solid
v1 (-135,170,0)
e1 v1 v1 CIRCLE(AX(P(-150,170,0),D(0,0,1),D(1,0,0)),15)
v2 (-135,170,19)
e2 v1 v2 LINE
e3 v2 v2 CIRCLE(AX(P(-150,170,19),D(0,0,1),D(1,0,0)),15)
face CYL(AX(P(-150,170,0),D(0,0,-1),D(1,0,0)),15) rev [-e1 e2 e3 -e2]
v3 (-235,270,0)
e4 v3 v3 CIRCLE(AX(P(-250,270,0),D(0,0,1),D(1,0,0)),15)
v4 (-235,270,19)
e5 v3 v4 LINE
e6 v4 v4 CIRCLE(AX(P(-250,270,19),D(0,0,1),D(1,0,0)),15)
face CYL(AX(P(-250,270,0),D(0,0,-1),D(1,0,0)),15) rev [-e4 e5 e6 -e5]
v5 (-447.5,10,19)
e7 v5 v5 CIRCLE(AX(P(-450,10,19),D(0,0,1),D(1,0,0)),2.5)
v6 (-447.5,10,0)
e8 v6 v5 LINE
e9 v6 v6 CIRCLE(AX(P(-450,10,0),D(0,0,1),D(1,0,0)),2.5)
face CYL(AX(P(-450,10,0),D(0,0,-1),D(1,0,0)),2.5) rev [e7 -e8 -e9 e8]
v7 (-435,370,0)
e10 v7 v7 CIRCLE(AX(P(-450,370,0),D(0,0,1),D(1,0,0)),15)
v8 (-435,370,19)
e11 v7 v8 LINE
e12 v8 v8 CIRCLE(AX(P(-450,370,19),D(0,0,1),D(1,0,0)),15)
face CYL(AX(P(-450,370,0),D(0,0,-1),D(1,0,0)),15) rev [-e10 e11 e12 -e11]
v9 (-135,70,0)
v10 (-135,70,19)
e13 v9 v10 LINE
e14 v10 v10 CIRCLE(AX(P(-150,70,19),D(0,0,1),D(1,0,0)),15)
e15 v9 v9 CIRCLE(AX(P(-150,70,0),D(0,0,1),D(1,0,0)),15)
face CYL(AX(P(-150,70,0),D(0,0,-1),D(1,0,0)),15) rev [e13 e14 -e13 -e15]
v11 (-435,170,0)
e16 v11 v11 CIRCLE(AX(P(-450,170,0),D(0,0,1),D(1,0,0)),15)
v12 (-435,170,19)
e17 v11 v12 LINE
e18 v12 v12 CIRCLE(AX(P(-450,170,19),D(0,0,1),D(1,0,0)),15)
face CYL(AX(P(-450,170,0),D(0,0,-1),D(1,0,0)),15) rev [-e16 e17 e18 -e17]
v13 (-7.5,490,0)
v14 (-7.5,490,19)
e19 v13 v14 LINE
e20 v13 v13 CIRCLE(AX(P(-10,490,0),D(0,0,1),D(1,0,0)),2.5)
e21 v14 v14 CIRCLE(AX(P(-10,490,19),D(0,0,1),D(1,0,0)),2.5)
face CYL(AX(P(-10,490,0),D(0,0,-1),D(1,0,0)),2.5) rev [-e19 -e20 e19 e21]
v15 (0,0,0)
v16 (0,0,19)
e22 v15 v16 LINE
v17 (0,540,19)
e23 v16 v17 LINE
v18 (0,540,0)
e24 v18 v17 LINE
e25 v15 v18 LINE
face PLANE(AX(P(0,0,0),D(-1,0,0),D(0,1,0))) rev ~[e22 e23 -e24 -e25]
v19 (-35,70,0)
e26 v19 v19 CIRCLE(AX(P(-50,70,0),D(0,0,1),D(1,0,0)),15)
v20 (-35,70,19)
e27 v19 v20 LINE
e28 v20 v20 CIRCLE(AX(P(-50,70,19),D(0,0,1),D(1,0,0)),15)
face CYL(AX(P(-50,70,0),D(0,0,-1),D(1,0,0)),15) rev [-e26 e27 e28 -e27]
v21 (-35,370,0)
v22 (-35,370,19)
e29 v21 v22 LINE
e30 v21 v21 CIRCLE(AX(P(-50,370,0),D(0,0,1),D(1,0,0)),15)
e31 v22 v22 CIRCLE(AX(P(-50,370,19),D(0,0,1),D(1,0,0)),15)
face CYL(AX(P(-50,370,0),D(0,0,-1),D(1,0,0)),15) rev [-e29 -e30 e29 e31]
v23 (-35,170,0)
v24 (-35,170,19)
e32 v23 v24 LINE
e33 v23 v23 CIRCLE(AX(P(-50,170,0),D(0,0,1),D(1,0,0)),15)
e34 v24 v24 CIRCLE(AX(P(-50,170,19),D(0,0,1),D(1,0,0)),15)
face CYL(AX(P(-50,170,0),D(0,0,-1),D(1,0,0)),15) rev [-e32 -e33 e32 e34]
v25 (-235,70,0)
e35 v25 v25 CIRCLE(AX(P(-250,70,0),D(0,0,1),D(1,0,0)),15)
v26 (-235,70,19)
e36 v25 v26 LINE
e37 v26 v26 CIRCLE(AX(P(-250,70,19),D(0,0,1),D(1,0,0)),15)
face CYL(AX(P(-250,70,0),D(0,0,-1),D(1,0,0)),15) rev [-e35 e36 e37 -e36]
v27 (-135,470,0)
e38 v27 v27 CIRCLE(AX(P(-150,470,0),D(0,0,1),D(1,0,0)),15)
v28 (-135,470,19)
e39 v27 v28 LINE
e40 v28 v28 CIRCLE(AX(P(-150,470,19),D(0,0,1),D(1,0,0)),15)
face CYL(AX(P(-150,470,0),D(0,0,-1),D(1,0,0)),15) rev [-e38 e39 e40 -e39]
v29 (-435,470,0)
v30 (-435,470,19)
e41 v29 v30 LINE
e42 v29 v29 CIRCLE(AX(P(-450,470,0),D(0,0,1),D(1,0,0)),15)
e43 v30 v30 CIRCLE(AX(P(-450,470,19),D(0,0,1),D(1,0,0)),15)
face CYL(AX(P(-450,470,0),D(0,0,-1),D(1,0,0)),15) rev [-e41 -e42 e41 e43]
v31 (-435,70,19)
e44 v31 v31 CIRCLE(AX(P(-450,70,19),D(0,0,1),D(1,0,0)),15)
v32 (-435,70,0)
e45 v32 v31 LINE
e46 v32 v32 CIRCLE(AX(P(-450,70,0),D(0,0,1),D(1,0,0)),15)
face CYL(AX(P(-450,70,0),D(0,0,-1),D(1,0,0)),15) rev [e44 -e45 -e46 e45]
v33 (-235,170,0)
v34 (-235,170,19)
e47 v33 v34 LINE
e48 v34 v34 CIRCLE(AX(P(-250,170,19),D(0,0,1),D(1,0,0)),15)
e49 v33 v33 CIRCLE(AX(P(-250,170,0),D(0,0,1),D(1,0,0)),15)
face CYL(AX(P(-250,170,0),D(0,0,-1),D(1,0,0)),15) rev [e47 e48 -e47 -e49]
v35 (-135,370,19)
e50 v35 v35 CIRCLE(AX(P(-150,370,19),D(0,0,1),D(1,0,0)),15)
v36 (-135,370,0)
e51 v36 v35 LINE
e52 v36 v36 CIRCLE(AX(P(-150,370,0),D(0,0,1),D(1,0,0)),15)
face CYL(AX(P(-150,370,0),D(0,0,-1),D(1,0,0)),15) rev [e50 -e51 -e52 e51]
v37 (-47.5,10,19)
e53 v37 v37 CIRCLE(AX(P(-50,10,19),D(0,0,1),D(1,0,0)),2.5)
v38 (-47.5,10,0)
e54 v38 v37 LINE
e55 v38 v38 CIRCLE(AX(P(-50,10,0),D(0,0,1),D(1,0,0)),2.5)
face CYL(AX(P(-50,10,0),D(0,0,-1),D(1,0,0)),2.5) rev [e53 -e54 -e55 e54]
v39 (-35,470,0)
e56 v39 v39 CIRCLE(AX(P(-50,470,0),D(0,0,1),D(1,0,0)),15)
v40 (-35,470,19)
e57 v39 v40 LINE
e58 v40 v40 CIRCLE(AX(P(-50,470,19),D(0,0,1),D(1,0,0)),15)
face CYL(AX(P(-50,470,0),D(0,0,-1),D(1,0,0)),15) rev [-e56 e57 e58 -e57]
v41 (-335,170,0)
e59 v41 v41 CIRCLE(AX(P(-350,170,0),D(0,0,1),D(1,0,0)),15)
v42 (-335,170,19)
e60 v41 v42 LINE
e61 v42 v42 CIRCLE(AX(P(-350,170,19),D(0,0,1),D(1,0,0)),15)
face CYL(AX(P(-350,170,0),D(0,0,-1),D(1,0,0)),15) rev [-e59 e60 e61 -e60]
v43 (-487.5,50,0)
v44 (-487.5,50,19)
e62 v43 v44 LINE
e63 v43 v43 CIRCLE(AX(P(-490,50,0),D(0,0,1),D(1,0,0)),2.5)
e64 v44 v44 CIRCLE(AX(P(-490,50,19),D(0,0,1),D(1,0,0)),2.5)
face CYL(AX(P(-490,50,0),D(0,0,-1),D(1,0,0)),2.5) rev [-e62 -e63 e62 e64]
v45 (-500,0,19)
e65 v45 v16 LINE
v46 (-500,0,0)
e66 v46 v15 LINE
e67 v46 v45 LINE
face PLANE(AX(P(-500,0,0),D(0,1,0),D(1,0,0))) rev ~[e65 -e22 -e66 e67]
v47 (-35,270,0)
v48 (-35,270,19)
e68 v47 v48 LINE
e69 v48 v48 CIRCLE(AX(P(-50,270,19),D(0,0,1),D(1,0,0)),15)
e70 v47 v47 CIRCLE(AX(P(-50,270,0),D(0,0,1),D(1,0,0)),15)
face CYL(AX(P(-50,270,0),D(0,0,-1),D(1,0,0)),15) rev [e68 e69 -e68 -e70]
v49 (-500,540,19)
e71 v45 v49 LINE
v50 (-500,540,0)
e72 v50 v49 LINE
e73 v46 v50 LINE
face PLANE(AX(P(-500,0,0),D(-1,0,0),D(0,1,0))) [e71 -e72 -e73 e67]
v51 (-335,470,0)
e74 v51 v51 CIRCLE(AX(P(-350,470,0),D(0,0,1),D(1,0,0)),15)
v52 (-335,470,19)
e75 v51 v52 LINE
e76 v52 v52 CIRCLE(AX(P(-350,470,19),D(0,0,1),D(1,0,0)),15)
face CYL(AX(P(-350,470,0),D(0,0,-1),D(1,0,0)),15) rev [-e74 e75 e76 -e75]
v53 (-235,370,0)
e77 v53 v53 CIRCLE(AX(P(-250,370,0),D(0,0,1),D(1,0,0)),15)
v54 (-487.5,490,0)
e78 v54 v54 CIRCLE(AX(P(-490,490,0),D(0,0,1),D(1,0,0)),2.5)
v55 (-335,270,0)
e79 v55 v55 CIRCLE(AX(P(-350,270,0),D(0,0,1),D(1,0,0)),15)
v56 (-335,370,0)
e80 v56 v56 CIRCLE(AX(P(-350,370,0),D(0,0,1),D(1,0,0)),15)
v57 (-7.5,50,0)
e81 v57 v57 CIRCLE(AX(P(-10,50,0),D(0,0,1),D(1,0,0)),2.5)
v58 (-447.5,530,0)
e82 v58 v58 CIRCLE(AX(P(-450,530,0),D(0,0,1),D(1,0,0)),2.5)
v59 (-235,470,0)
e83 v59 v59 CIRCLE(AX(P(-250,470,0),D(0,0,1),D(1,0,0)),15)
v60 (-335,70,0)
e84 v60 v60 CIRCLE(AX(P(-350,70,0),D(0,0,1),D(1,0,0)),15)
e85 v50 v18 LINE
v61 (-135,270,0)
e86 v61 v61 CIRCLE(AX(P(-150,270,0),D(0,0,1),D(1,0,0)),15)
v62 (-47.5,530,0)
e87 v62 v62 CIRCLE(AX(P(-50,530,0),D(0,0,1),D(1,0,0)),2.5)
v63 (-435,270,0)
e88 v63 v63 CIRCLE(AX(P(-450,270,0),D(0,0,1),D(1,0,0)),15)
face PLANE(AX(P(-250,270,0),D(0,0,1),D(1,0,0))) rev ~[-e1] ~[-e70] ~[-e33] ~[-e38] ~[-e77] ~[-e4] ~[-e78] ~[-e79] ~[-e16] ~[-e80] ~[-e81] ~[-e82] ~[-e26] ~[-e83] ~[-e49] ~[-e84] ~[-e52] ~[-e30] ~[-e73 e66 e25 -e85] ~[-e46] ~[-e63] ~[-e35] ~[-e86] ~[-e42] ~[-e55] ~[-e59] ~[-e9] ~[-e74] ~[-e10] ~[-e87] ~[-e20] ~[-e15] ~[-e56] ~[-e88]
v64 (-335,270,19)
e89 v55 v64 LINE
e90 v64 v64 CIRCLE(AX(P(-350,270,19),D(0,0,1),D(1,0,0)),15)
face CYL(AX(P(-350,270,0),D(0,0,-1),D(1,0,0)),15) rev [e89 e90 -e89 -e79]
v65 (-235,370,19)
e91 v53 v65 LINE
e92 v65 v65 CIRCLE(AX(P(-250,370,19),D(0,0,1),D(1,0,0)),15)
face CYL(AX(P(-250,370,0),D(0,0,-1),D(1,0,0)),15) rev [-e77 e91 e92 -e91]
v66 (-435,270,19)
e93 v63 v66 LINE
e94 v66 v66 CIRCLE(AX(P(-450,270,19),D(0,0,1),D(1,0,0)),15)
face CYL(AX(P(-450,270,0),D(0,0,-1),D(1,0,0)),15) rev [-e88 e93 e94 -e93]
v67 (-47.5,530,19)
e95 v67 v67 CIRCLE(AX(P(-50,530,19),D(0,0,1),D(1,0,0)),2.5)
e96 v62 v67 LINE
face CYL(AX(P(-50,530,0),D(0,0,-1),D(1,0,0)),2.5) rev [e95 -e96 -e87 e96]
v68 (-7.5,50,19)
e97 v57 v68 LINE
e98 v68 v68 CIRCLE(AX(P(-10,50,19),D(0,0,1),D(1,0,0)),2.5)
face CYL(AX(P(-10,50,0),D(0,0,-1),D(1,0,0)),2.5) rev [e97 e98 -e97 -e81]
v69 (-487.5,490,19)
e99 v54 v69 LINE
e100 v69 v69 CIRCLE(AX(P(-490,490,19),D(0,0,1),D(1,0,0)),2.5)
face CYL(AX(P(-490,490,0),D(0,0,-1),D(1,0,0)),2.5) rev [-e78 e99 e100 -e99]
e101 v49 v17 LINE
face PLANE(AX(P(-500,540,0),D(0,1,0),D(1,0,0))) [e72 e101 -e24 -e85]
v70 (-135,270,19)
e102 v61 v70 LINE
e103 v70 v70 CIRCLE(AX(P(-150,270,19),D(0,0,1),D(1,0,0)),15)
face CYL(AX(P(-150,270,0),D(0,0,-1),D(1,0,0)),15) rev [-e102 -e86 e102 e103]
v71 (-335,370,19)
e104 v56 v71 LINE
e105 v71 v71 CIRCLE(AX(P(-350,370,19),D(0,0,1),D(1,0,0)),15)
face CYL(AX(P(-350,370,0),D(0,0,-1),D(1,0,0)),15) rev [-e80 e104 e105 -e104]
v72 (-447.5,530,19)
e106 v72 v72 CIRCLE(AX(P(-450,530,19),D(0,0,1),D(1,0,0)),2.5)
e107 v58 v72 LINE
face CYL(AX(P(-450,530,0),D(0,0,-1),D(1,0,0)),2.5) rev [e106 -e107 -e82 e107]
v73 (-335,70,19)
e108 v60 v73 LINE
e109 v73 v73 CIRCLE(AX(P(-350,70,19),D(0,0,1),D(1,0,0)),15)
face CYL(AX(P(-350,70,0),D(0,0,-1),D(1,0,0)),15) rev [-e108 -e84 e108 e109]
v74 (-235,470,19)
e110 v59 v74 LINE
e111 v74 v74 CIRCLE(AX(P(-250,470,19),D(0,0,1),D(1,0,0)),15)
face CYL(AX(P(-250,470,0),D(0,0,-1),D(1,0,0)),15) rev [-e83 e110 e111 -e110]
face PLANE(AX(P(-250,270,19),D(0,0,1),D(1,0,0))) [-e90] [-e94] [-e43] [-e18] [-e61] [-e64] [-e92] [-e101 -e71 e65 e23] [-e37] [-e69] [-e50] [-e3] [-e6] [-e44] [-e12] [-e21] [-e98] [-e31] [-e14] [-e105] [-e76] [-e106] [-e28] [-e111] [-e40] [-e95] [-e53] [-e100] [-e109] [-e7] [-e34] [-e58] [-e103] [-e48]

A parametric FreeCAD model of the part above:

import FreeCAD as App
import Part
import Sketcher

V = App.Vector

doc = App.newDocument("Part")
body = doc.addObject("PartDesign::Body", "Body")

# Sketch on XY plane
sketch1 = body.newObject("Sketcher::SketchObject", "Sketch")
sketch1.AttachmentSupport = (doc.getObject("XY_Plane"), [""])
sketch1.MapMode = "FlatFace"
sketch1.addGeometry(Part.LineSegment(V(-500, 540, 0), V(-500, 0, 0)), False)
sketch1.addGeometry(Part.LineSegment(V(-500, 0, 0), V(0, 0, 0)), False)
sketch1.addGeometry(Part.LineSegment(V(0, 0, 0), V(0, 540, 0)), False)
sketch1.addGeometry(Part.LineSegment(V(0, 540, 0), V(-500, 540, 0)), False)
sketch1.addGeometry(Part.Circle(V(-450, 10, 0), V(0, 0, 1), 2.5), False)
sketch1.addGeometry(Part.Circle(V(-490, 50, 0), V(0, 0, 1), 2.5), False)
sketch1.addGeometry(Part.Circle(V(-450, 70, 0), V(0, 0, 1), 15), False)
sketch1.addGeometry(Part.Circle(V(-350, 70, 0), V(0, 0, 1), 15), False)
sketch1.addGeometry(Part.Circle(V(-450, 170, 0), V(0, 0, 1), 15), False)
sketch1.addGeometry(Part.Circle(V(-350, 170, 0), V(0, 0, 1), 15), False)
sketch1.addGeometry(Part.Circle(V(-250, 70, 0), V(0, 0, 1), 15), False)
sketch1.addGeometry(Part.Circle(V(-150, 70, 0), V(0, 0, 1), 15), False)
sketch1.addGeometry(Part.Circle(V(-50, 10, 0), V(0, 0, 1), 2.5), False)
sketch1.addGeometry(Part.Circle(V(-50, 70, 0), V(0, 0, 1), 15), False)
sketch1.addGeometry(Part.Circle(V(-10, 50, 0), V(0, 0, 1), 2.5), False)
sketch1.addGeometry(Part.Circle(V(-250, 170, 0), V(0, 0, 1), 15), False)
sketch1.addGeometry(Part.Circle(V(-150, 170, 0), V(0, 0, 1), 15), False)
sketch1.addGeometry(Part.Circle(V(-50, 170, 0), V(0, 0, 1), 15), False)
sketch1.addGeometry(Part.Circle(V(-450, 270, 0), V(0, 0, 1), 15), False)
sketch1.addGeometry(Part.Circle(V(-450, 370, 0), V(0, 0, 1), 15), False)
sketch1.addGeometry(Part.Circle(V(-350, 270, 0), V(0, 0, 1), 15), False)
sketch1.addGeometry(Part.Circle(V(-350, 370, 0), V(0, 0, 1), 15), False)
sketch1.addGeometry(Part.Circle(V(-490, 490, 0), V(0, 0, 1), 2.5), False)
sketch1.addGeometry(Part.Circle(V(-450, 470, 0), V(0, 0, 1), 15), False)
sketch1.addGeometry(Part.Circle(V(-450, 530, 0), V(0, 0, 1), 2.5), False)
sketch1.addGeometry(Part.Circle(V(-350, 470, 0), V(0, 0, 1), 15), False)
sketch1.addGeometry(Part.Circle(V(-250, 270, 0), V(0, 0, 1), 15), False)
sketch1.addGeometry(Part.Circle(V(-150, 270, 0), V(0, 0, 1), 15), False)
sketch1.addGeometry(Part.Circle(V(-250, 370, 0), V(0, 0, 1), 15), False)
sketch1.addGeometry(Part.Circle(V(-150, 370, 0), V(0, 0, 1), 15), False)
sketch1.addGeometry(Part.Circle(V(-50, 270, 0), V(0, 0, 1), 15), False)
sketch1.addGeometry(Part.Circle(V(-50, 370, 0), V(0, 0, 1), 15), False)
sketch1.addGeometry(Part.Circle(V(-250, 470, 0), V(0, 0, 1), 15), False)
sketch1.addGeometry(Part.Circle(V(-150, 470, 0), V(0, 0, 1), 15), False)
sketch1.addGeometry(Part.Circle(V(-50, 470, 0), V(0, 0, 1), 15), False)
sketch1.addGeometry(Part.Circle(V(-10, 490, 0), V(0, 0, 1), 2.5), False)
sketch1.addGeometry(Part.Circle(V(-50, 530, 0), V(0, 0, 1), 2.5), False)
sketch1.addConstraint(Sketcher.Constraint("Coincident", 0, 2, 1, 1))
sketch1.addConstraint(Sketcher.Constraint("Coincident", 1, 2, 2, 1))
sketch1.addConstraint(Sketcher.Constraint("Coincident", 2, 2, 3, 1))
sketch1.addConstraint(Sketcher.Constraint("Coincident", 3, 2, 0, 1))
sketch1.addConstraint(Sketcher.Constraint("Vertical", 0))
sketch1.addConstraint(Sketcher.Constraint("Horizontal", 1))
sketch1.addConstraint(Sketcher.Constraint("Vertical", 2))
sketch1.addConstraint(Sketcher.Constraint("Horizontal", 3))
sketch1.addConstraint(Sketcher.Constraint("Coincident", 1, 2, -1, 1))
sketch1.addConstraint(Sketcher.Constraint("Equal", 4, 5))
sketch1.addConstraint(Sketcher.Constraint("Equal", 6, 7))
sketch1.addConstraint(Sketcher.Constraint("Equal", 7, 8))
sketch1.addConstraint(Sketcher.Constraint("Equal", 8, 9))
sketch1.addConstraint(Sketcher.Constraint("Equal", 9, 10))
sketch1.addConstraint(Sketcher.Constraint("Equal", 10, 11))
sketch1.addConstraint(Sketcher.Constraint("Equal", 5, 12))
sketch1.addConstraint(Sketcher.Constraint("Equal", 11, 13))
sketch1.addConstraint(Sketcher.Constraint("Equal", 12, 14))
sketch1.addConstraint(Sketcher.Constraint("Equal", 13, 15))
sketch1.addConstraint(Sketcher.Constraint("Equal", 15, 16))
sketch1.addConstraint(Sketcher.Constraint("Equal", 16, 17))
sketch1.addConstraint(Sketcher.Constraint("Equal", 17, 18))
sketch1.addConstraint(Sketcher.Constraint("Equal", 18, 19))
sketch1.addConstraint(Sketcher.Constraint("Equal", 19, 20))
sketch1.addConstraint(Sketcher.Constraint("Equal", 20, 21))
sketch1.addConstraint(Sketcher.Constraint("Equal", 14, 22))
sketch1.addConstraint(Sketcher.Constraint("Equal", 21, 23))
sketch1.addConstraint(Sketcher.Constraint("Equal", 22, 24))
sketch1.addConstraint(Sketcher.Constraint("Equal", 23, 25))
sketch1.addConstraint(Sketcher.Constraint("Equal", 25, 26))
sketch1.addConstraint(Sketcher.Constraint("Equal", 26, 27))
sketch1.addConstraint(Sketcher.Constraint("Equal", 27, 28))
sketch1.addConstraint(Sketcher.Constraint("Equal", 28, 29))
sketch1.addConstraint(Sketcher.Constraint("Equal", 29, 30))
sketch1.addConstraint(Sketcher.Constraint("Equal", 30, 31))
sketch1.addConstraint(Sketcher.Constraint("Equal", 31, 32))
sketch1.addConstraint(Sketcher.Constraint("Equal", 32, 33))
sketch1.addConstraint(Sketcher.Constraint("Equal", 33, 34))
sketch1.addConstraint(Sketcher.Constraint("Equal", 24, 35))
sketch1.addConstraint(Sketcher.Constraint("Equal", 35, 36))
sketch1.addConstraint(Sketcher.Constraint("Horizontal", 6, 3, 7, 3))
sketch1.addConstraint(Sketcher.Constraint("Horizontal", 8, 3, 9, 3))
sketch1.addConstraint(Sketcher.Constraint("Horizontal", 7, 3, 10, 3))
sketch1.addConstraint(Sketcher.Constraint("Horizontal", 10, 3, 11, 3))
sketch1.addConstraint(Sketcher.Constraint("Horizontal", 4, 3, 12, 3))
sketch1.addConstraint(Sketcher.Constraint("Horizontal", 11, 3, 13, 3))
sketch1.addConstraint(Sketcher.Constraint("Horizontal", 5, 3, 14, 3))
sketch1.addConstraint(Sketcher.Constraint("Horizontal", 9, 3, 15, 3))
sketch1.addConstraint(Sketcher.Constraint("Horizontal", 15, 3, 16, 3))
sketch1.addConstraint(Sketcher.Constraint("Horizontal", 16, 3, 17, 3))
sketch1.addConstraint(Sketcher.Constraint("Horizontal", 18, 3, 20, 3))
sketch1.addConstraint(Sketcher.Constraint("Horizontal", 19, 3, 21, 3))
sketch1.addConstraint(Sketcher.Constraint("Horizontal", 23, 3, 25, 3))
sketch1.addConstraint(Sketcher.Constraint("Horizontal", 20, 3, 26, 3))
sketch1.addConstraint(Sketcher.Constraint("Horizontal", 26, 3, 27, 3))
sketch1.addConstraint(Sketcher.Constraint("Horizontal", 21, 3, 28, 3))
sketch1.addConstraint(Sketcher.Constraint("Horizontal", 28, 3, 29, 3))
sketch1.addConstraint(Sketcher.Constraint("Horizontal", 27, 3, 30, 3))
sketch1.addConstraint(Sketcher.Constraint("Horizontal", 29, 3, 31, 3))
sketch1.addConstraint(Sketcher.Constraint("Horizontal", 25, 3, 32, 3))
sketch1.addConstraint(Sketcher.Constraint("Horizontal", 32, 3, 33, 3))
sketch1.addConstraint(Sketcher.Constraint("Horizontal", 33, 3, 34, 3))
sketch1.addConstraint(Sketcher.Constraint("Horizontal", 22, 3, 35, 3))
sketch1.addConstraint(Sketcher.Constraint("Horizontal", 24, 3, 36, 3))
sketch1.addConstraint(Sketcher.Constraint("Vertical", 4, 3, 6, 3))
sketch1.addConstraint(Sketcher.Constraint("Vertical", 6, 3, 8, 3))
sketch1.addConstraint(Sketcher.Constraint("Vertical", 7, 3, 9, 3))
sketch1.addConstraint(Sketcher.Constraint("Vertical", 12, 3, 13, 3))
sketch1.addConstraint(Sketcher.Constraint("Vertical", 10, 3, 15, 3))
sketch1.addConstraint(Sketcher.Constraint("Vertical", 11, 3, 16, 3))
sketch1.addConstraint(Sketcher.Constraint("Vertical", 13, 3, 17, 3))
sketch1.addConstraint(Sketcher.Constraint("Vertical", 8, 3, 18, 3))
sketch1.addConstraint(Sketcher.Constraint("Vertical", 18, 3, 19, 3))
sketch1.addConstraint(Sketcher.Constraint("Vertical", 9, 3, 20, 3))
sketch1.addConstraint(Sketcher.Constraint("Vertical", 20, 3, 21, 3))
sketch1.addConstraint(Sketcher.Constraint("Vertical", 5, 3, 22, 3))
sketch1.addConstraint(Sketcher.Constraint("Vertical", 19, 3, 23, 3))
sketch1.addConstraint(Sketcher.Constraint("Vertical", 23, 3, 24, 3))
sketch1.addConstraint(Sketcher.Constraint("Vertical", 21, 3, 25, 3))
sketch1.addConstraint(Sketcher.Constraint("Vertical", 15, 3, 26, 3))
sketch1.addConstraint(Sketcher.Constraint("Vertical", 16, 3, 27, 3))
sketch1.addConstraint(Sketcher.Constraint("Vertical", 26, 3, 28, 3))
sketch1.addConstraint(Sketcher.Constraint("Vertical", 27, 3, 29, 3))
sketch1.addConstraint(Sketcher.Constraint("Vertical", 17, 3, 30, 3))
sketch1.addConstraint(Sketcher.Constraint("Vertical", 30, 3, 31, 3))
sketch1.addConstraint(Sketcher.Constraint("Vertical", 28, 3, 32, 3))
sketch1.addConstraint(Sketcher.Constraint("Vertical", 29, 3, 33, 3))
sketch1.addConstraint(Sketcher.Constraint("Vertical", 31, 3, 34, 3))
sketch1.addConstraint(Sketcher.Constraint("Vertical", 14, 3, 35, 3))
sketch1.addConstraint(Sketcher.Constraint("Vertical", 34, 3, 36, 3))
sketch1.addConstraint(Sketcher.Constraint("Diameter", 4, 5.0))
sketch1.addConstraint(Sketcher.Constraint("Diameter", 6, 30.0))
sketch1.addConstraint(Sketcher.Constraint("DistanceX", 1, 1, 1, 2, 500.0))
sketch1.addConstraint(Sketcher.Constraint("DistanceY", 0, 2, 0, 1, 540.0))
sketch1.addConstraint(Sketcher.Constraint("DistanceX", 4, 3, -1, 1, 450.0))
sketch1.addConstraint(Sketcher.Constraint("DistanceY", -1, 1, 4, 3, 10.0))
sketch1.addConstraint(Sketcher.Constraint("DistanceX", 5, 3, -1, 1, 490.0))
sketch1.addConstraint(Sketcher.Constraint("DistanceY", -1, 1, 5, 3, 50.0))
sketch1.addConstraint(Sketcher.Constraint("DistanceY", -1, 1, 6, 3, 70.0))
sketch1.addConstraint(Sketcher.Constraint("DistanceX", 7, 3, -1, 1, 350.0))
sketch1.addConstraint(Sketcher.Constraint("DistanceY", -1, 1, 8, 3, 170.0))
sketch1.addConstraint(Sketcher.Constraint("DistanceX", 10, 3, -1, 1, 250.0))
sketch1.addConstraint(Sketcher.Constraint("DistanceX", 11, 3, -1, 1, 150.0))
sketch1.addConstraint(Sketcher.Constraint("DistanceX", 12, 3, -1, 1, 50.0))
sketch1.addConstraint(Sketcher.Constraint("DistanceX", 14, 3, -1, 1, 10.0))
sketch1.addConstraint(Sketcher.Constraint("DistanceY", -1, 1, 18, 3, 270.0))
sketch1.addConstraint(Sketcher.Constraint("DistanceY", -1, 1, 19, 3, 370.0))
sketch1.addConstraint(Sketcher.Constraint("DistanceY", -1, 1, 22, 3, 490.0))
sketch1.addConstraint(Sketcher.Constraint("DistanceY", -1, 1, 23, 3, 470.0))
sketch1.addConstraint(Sketcher.Constraint("DistanceY", -1, 1, 24, 3, 530.0))
pad1 = body.newObject("PartDesign::Pad", "Pad")
pad1.Profile = sketch1
pad1.Length = 19

doc.recompute()
